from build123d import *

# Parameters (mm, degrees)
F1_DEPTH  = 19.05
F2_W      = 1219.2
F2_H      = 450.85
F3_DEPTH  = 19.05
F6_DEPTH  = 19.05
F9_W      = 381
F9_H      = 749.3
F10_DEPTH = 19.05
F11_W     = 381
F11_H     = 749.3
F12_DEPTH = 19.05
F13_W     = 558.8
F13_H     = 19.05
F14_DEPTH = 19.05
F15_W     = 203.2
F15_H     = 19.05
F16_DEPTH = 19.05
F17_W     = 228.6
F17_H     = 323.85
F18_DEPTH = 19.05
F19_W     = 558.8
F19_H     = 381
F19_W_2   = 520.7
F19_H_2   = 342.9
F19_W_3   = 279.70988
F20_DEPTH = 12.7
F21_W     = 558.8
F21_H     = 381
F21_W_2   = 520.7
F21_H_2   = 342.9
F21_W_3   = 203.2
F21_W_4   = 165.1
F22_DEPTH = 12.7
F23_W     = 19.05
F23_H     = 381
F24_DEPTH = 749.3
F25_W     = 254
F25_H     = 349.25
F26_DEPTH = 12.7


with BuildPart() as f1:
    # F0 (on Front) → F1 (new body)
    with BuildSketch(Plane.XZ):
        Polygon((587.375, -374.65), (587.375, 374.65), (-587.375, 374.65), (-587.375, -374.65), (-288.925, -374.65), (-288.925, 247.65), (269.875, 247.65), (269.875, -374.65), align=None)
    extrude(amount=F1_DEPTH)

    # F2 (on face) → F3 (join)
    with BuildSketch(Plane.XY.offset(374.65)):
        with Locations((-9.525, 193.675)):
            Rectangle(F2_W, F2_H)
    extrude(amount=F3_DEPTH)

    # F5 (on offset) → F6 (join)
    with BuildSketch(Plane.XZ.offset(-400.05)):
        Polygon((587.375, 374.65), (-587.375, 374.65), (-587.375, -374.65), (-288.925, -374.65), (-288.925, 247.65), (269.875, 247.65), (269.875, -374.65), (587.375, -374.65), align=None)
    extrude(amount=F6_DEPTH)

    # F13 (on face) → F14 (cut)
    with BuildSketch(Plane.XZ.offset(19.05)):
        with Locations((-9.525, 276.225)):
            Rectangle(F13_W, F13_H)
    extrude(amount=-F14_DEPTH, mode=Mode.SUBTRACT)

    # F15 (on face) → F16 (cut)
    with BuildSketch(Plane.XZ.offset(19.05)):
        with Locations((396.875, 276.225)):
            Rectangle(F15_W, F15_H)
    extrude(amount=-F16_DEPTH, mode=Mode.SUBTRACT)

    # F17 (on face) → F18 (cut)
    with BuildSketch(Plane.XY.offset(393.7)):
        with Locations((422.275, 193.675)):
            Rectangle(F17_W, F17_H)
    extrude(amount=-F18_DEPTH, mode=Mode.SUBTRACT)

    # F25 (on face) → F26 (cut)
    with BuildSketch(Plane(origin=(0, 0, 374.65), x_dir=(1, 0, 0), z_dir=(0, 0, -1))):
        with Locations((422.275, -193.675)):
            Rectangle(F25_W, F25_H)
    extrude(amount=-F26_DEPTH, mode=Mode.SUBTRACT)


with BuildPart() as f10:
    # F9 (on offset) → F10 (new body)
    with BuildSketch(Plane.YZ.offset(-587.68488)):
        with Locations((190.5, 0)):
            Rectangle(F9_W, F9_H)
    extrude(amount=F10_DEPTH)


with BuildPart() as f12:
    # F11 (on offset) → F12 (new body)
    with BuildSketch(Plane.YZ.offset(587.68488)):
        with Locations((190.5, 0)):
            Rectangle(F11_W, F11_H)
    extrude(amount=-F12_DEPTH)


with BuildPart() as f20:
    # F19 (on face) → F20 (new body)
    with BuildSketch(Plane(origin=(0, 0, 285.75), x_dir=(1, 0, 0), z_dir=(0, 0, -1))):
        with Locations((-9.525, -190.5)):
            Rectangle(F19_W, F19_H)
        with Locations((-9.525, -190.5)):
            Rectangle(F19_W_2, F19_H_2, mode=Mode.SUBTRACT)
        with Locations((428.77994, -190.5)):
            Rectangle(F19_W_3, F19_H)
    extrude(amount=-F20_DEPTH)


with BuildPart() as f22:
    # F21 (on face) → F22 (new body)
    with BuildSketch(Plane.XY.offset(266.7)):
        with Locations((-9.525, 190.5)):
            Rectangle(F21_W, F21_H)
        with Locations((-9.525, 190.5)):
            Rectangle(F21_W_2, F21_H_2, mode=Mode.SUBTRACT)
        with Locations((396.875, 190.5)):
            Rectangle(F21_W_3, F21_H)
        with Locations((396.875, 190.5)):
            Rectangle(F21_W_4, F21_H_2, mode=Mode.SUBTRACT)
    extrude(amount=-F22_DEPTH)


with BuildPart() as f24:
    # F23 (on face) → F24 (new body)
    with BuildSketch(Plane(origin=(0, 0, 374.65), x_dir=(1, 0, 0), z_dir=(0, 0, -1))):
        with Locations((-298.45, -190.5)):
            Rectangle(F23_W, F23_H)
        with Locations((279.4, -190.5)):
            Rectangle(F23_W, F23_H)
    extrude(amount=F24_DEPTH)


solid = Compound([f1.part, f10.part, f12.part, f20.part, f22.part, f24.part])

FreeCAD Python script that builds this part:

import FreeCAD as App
import Part
import Sketcher
from FreeCAD import Vector
Q = App.Units.Quantity

doc = App.newDocument("Part")
body = doc.addObject("PartDesign::Body", "Body")

sketch1 = body.newObject("Sketcher::SketchObject", "Sketch")
sketch1.AttachmentSupport = (doc.getObject("XZ_Plane"), [""])
sketch1.MapMode = "FlatFace"
sketch1.addGeometry(Part.LineSegment(Vector(587.375, -374.65, 0), Vector(587.375, 374.65, 0)), False)
sketch1.addGeometry(Part.LineSegment(Vector(587.375, 374.65, 0), Vector(-587.375, 374.65, 0)), False)
sketch1.addGeometry(Part.LineSegment(Vector(-587.375, 374.65, 0), Vector(-587.375, -374.65, 0)), False)
sketch1.addGeometry(Part.LineSegment(Vector(-587.375, -374.65, 0), Vector(-288.925, -374.65, 0)), False)
sketch1.addGeometry(Part.LineSegment(Vector(-288.925, -374.65, 0), Vector(-288.925, 247.65, 0)), False)
sketch1.addGeometry(Part.LineSegment(Vector(-288.925, 247.65, 0), Vector(269.875, 247.65, 0)), False)
sketch1.addGeometry(Part.LineSegment(Vector(269.875, 247.65, 0), Vector(269.875, -374.65, 0)), False)
sketch1.addGeometry(Part.LineSegment(Vector(269.875, -374.65, 0), Vector(587.375, -374.65, 0)), False)
sketch1.addConstraint(Sketcher.Constraint("Coincident", 0, 2, 1, 1))
sketch1.addConstraint(Sketcher.Constraint("Coincident", 1, 2, 2, 1))
sketch1.addConstraint(Sketcher.Constraint("Coincident", 2, 2, 3, 1))
sketch1.addConstraint(Sketcher.Constraint("Coincident", 3, 2, 4, 1))
sketch1.addConstraint(Sketcher.Constraint("Coincident", 4, 2, 5, 1))
sketch1.addConstraint(Sketcher.Constraint("Coincident", 5, 2, 6, 1))
sketch1.addConstraint(Sketcher.Constraint("Coincident", 6, 2, 7, 1))
sketch1.addConstraint(Sketcher.Constraint("Coincident", 7, 2, 0, 1))
sketch1.addConstraint(Sketcher.Constraint("Vertical", 0))
sketch1.addConstraint(Sketcher.Constraint("Horizontal", 1))
sketch1.addConstraint(Sketcher.Constraint("Vertical", 2))
sketch1.addConstraint(Sketcher.Constraint("Horizontal", 3))
sketch1.addConstraint(Sketcher.Constraint("Vertical", 4))
sketch1.addConstraint(Sketcher.Constraint("Horizontal", 5))
sketch1.addConstraint(Sketcher.Constraint("Vertical", 6))
sketch1.addConstraint(Sketcher.Constraint("Horizontal", 7))
sketch1.addConstraint(Sketcher.Constraint("Symmetric", 0, 2, 2, 2, -1, 1))
sketch1.addConstraint(Sketcher.Constraint("Horizontal", 3, 2, 6, 2))
sketch1.addConstraint(Sketcher.Constraint("DistanceX", 5, 1, 5, 2, Q("22 in")))
sketch1.addConstraint(Sketcher.Constraint("DistanceX", 7, 1, 7, 2, Q("12.5 in")))
sketch1.addConstraint(Sketcher.Constraint("DistanceY", 0, 1, 0, 2, Q("29.5 in")))
sketch1.addConstraint(Sketcher.Constraint("DistanceY", 4, 1, 4, 2, Q("24.5 in")))
sketch1.addConstraint(Sketcher.Constraint("DistanceX", 1, 2, 1, 1, Q("46.25 in")))
pad1 = body.newObject("PartDesign::Pad", "Pad")
pad1.Profile = sketch1
pad1.Length = Q("0.75 in")

sketch2 = body.newObject("Sketcher::SketchObject", "Sketch001")
sketch2.AttachmentSupport = (doc.getObject("XY_Plane"), [""])
sketch2.MapMode = "FlatFace"
sketch2.AttachmentOffset = App.Placement(Vector(0, 0, 14.75 * 25.4), App.Rotation())
sketch2.addGeometry(Part.LineSegment(Vector(-619.125, 419.1, 0), Vector(-619.125, -31.75, 0)), False)
sketch2.addGeometry(Part.LineSegment(Vector(-619.125, -31.75, 0), Vector(600.075, -31.75, 0)), False)
sketch2.addGeometry(Part.LineSegment(Vector(600.075, -31.75, 0), Vector(600.075, 419.1, 0)), False)
sketch2.addGeometry(Part.LineSegment(Vector(600.075, 419.1, 0), Vector(-619.125, 419.1, 0)), False)
sketch2.addConstraint(Sketcher.Constraint("Coincident", 0, 2, 1, 1))
sketch2.addConstraint(Sketcher.Constraint("Coincident", 1, 2, 2, 1))
sketch2.addConstraint(Sketcher.Constraint("Coincident", 2, 2, 3, 1))
sketch2.addConstraint(Sketcher.Constraint("Coincident", 3, 2, 0, 1))
sketch2.addConstraint(Sketcher.Constraint("Vertical", 0))
sketch2.addConstraint(Sketcher.Constraint("Horizontal", 1))
sketch2.addConstraint(Sketcher.Constraint("Vertical", 2))
sketch2.addConstraint(Sketcher.Constraint("Horizontal", 3))
sketch2.addConstraint(Sketcher.Constraint("DistanceX", 1, 1, 1, 2, Q("48 in")))
sketch2.addConstraint(Sketcher.Constraint("DistanceY", 0, 2, 0, 1, Q("17.75 in")))
sketch2.addConstraint(Sketcher.Constraint("DistanceY", -1, 1, 2, 2, Q("16.5 in")))
sketch2.addConstraint(Sketcher.Constraint("DistanceX", 0, 2, -1, 1, Q("24.375 in")))
pad2 = body.newObject("PartDesign::Pad", "Pad001")
pad2.Profile = sketch2
pad2.Length = Q("0.75 in")

sketch3 = body.newObject("Sketcher::SketchObject", "Sketch002")
sketch3.AttachmentSupport = (doc.getObject("XZ_Plane"), [""])
sketch3.MapMode = "FlatFace"
sketch3.AttachmentOffset = App.Placement(Vector(0, 0, -15.75 * 25.4), App.Rotation())
sketch3.addGeometry(Part.LineSegment(Vector(587.375, 374.65, 0), Vector(-587.375, 374.65, 0)), False)
sketch3.addGeometry(Part.LineSegment(Vector(-587.375, 374.65, 0), Vector(-587.375, -374.65, 0)), False)
sketch3.addGeometry(Part.LineSegment(Vector(-587.375, -374.65, 0), Vector(-288.925, -374.65, 0)), False)
sketch3.addGeometry(Part.LineSegment(Vector(-288.925, -374.65, 0), Vector(-288.925, 247.65, 0)), False)
sketch3.addGeometry(Part.LineSegment(Vector(-288.925, 247.65, 0), Vector(269.875, 247.65, 0)), False)
sketch3.addGeometry(Part.LineSegment(Vector(269.875, 247.65, 0), Vector(269.875, -374.65, 0)), False)
sketch3.addGeometry(Part.LineSegment(Vector(269.875, -374.65, 0), Vector(587.375, -374.65, 0)), False)
sketch3.addGeometry(Part.LineSegment(Vector(587.375, -374.65, 0), Vector(587.375, 374.65, 0)), False)
sketch3.addConstraint(Sketcher.Constraint("Coincident", 0, 2, 1, 1))
sketch3.addConstraint(Sketcher.Constraint("Coincident", 1, 2, 2, 1))
sketch3.addConstraint(Sketcher.Constraint("Coincident", 2, 2, 3, 1))
sketch3.addConstraint(Sketcher.Constraint("Coincident", 3, 2, 4, 1))
sketch3.addConstraint(Sketcher.Constraint("Coincident", 4, 2, 5, 1))
sketch3.addConstraint(Sketcher.Constraint("Coincident", 5, 2, 6, 1))
sketch3.addConstraint(Sketcher.Constraint("Coincident", 6, 2, 7, 1))
sketch3.addConstraint(Sketcher.Constraint("Coincident", 7, 2, 0, 1))
sketch3.addConstraint(Sketcher.Constraint("Horizontal", 0))
sketch3.addConstraint(Sketcher.Constraint("Vertical", 1))
sketch3.addConstraint(Sketcher.Constraint("Horizontal", 2))
sketch3.addConstraint(Sketcher.Constraint("Vertical", 3))
sketch3.addConstraint(Sketcher.Constraint("Horizontal", 4))
sketch3.addConstraint(Sketcher.Constraint("Vertical", 5))
sketch3.addConstraint(Sketcher.Constraint("Horizontal", 6))
sketch3.addConstraint(Sketcher.Constraint("Vertical", 7))
sketch3.addConstraint(Sketcher.Constraint("Symmetric", 0, 2, 6, 2, -1, 1))
sketch3.addConstraint(Sketcher.Constraint("Horizontal", 2, 2, 5, 2))
sketch3.addConstraint(Sketcher.Constraint("DistanceX", 4, 1, 4, 2, Q("22 in")))
sketch3.addConstraint(Sketcher.Constraint("DistanceX", 6, 1, 6, 2, Q("12.5 in")))
sketch3.addConstraint(Sketcher.Constraint("DistanceY", 1, 2, 1, 1, Q("29.5 in")))
sketch3.addConstraint(Sketcher.Constraint("DistanceY", 3, 1, 3, 2, Q("24.5 in")))
sketch3.addConstraint(Sketcher.Constraint("DistanceX", 0, 2, 0, 1, Q("46.25 in")))
pad3 = body.newObject("PartDesign::Pad", "Pad002")
pad3.Profile = sketch3
pad3.Length = Q("0.75 in")

sketch4 = body.newObject("Sketcher::SketchObject", "Sketch003")
sketch4.AttachmentSupport = (doc.getObject("XZ_Plane"), [""])
sketch4.MapMode = "FlatFace"
sketch4.AttachmentOffset = App.Placement(Vector(0, 0, 0.75 * 25.4), App.Rotation())
sketch4.addGeometry(Part.LineSegment(Vector(-288.925, 285.75, 0), Vector(-288.925, 266.7, 0)), False)
sketch4.addGeometry(Part.LineSegment(Vector(-288.925, 266.7, 0), Vector(269.875, 266.7, 0)), False)
sketch4.addGeometry(Part.LineSegment(Vector(269.875, 266.7, 0), Vector(269.875, 285.75, 0)), False)
sketch4.addGeometry(Part.LineSegment(Vector(269.875, 285.75, 0), Vector(-288.925, 285.75, 0)), False)
sketch4.addConstraint(Sketcher.Constraint("Coincident", 0, 2, 1, 1))
sketch4.addConstraint(Sketcher.Constraint("Coincident", 1, 2, 2, 1))
sketch4.addConstraint(Sketcher.Constraint("Coincident", 2, 2, 3, 1))
sketch4.addConstraint(Sketcher.Constraint("Coincident", 3, 2, 0, 1))
sketch4.addConstraint(Sketcher.Constraint("Vertical", 0))
sketch4.addConstraint(Sketcher.Constraint("Horizontal", 1))
sketch4.addConstraint(Sketcher.Constraint("Vertical", 2))
sketch4.addConstraint(Sketcher.Constraint("Horizontal", 3))
sketch4.addConstraint(Sketcher.Constraint("DistanceX", 1, 1, 1, 2, Q("22 in")))
sketch4.addConstraint(Sketcher.Constraint("DistanceY", 0, 2, 0, 1, Q("0.75 in")))
sketch4.addConstraint(Sketcher.Constraint("DistanceY", -1, 1, 0, 2, Q("10.5 in")))
sketch4.addConstraint(Sketcher.Constraint("DistanceX", 0, 2, -1, 1, Q("11.375 in")))
pocket1 = body.newObject("PartDesign::Pocket", "Pocket")
pocket1.Profile = sketch4
pocket1.Length = Q("0.75 in")

sketch5 = body.newObject("Sketcher::SketchObject", "Sketch004")
sketch5.AttachmentSupport = (doc.getObject("XZ_Plane"), [""])
sketch5.MapMode = "FlatFace"
sketch5.AttachmentOffset = App.Placement(Vector(0, 0, 0.75 * 25.4), App.Rotation())
sketch5.addGeometry(Part.LineSegment(Vector(295.275, 285.75, 0), Vector(295.275, 266.7, 0)), False)
sketch5.addGeometry(Part.LineSegment(Vector(295.275, 266.7, 0), Vector(498.475, 266.7, 0)), False)
sketch5.addGeometry(Part.LineSegment(Vector(498.475, 266.7, 0), Vector(498.475, 285.75, 0)), False)
sketch5.addGeometry(Part.LineSegment(Vector(498.475, 285.75, 0), Vector(295.275, 285.75, 0)), False)
sketch5.addConstraint(Sketcher.Constraint("Coincident", 0, 2, 1, 1))
sketch5.addConstraint(Sketcher.Constraint("Coincident", 1, 2, 2, 1))
sketch5.addConstraint(Sketcher.Constraint("Coincident", 2, 2, 3, 1))
sketch5.addConstraint(Sketcher.Constraint("Coincident", 3, 2, 0, 1))
sketch5.addConstraint(Sketcher.Constraint("Vertical", 0))
sketch5.addConstraint(Sketcher.Constraint("Horizontal", 1))
sketch5.addConstraint(Sketcher.Constraint("Vertical", 2))
sketch5.addConstraint(Sketcher.Constraint("Horizontal", 3))
sketch5.addConstraint(Sketcher.Constraint("DistanceX", 1, 1, 1, 2, Q("8 in")))
sketch5.addConstraint(Sketcher.Constraint("DistanceY", 0, 2, 0, 1, Q("0.75 in")))
sketch5.addConstraint(Sketcher.Constraint("DistanceY", -1, 1, 0, 2, Q("10.5 in")))
sketch5.addConstraint(Sketcher.Constraint("DistanceX", -1, 1, 0, 2, Q("11.625 in")))
pocket2 = body.newObject("PartDesign::Pocket", "Pocket001")
pocket2.Profile = sketch5
pocket2.Length = Q("0.75 in")

sketch6 = body.newObject("Sketcher::SketchObject", "Sketch005")
sketch6.AttachmentSupport = (doc.getObject("XY_Plane"), [""])
sketch6.MapMode = "FlatFace"
sketch6.AttachmentOffset = App.Placement(Vector(0, 0, 15.5 * 25.4), App.Rotation())
sketch6.addGeometry(Part.LineSegment(Vector(307.975, 355.6, 0), Vector(307.975, 31.75, 0)), False)
sketch6.addGeometry(Part.LineSegment(Vector(307.975, 31.75, 0), Vector(536.575, 31.75, 0)), False)
sketch6.addGeometry(Part.LineSegment(Vector(536.575, 31.75, 0), Vector(536.575, 355.6, 0)), False)
sketch6.addGeometry(Part.LineSegment(Vector(536.575, 355.6, 0), Vector(307.975, 355.6, 0)), False)
sketch6.addConstraint(Sketcher.Constraint("Coincident", 0, 2, 1, 1))
sketch6.addConstraint(Sketcher.Constraint("Coincident", 1, 2, 2, 1))
sketch6.addConstraint(Sketcher.Constraint("Coincident", 2, 2, 3, 1))
sketch6.addConstraint(Sketcher.Constraint("Coincident", 3, 2, 0, 1))
sketch6.addConstraint(Sketcher.Constraint("Vertical", 0))
sketch6.addConstraint(Sketcher.Constraint("Horizontal", 1))
sketch6.addConstraint(Sketcher.Constraint("Vertical", 2))
sketch6.addConstraint(Sketcher.Constraint("Horizontal", 3))
sketch6.addConstraint(Sketcher.Constraint("DistanceX", 1, 1, 1, 2, Q("9 in")))
sketch6.addConstraint(Sketcher.Constraint("DistanceY", -1, 1, 2, 2, Q("14 in")))
sketch6.addConstraint(Sketcher.Constraint("DistanceY", 0, 2, 0, 1, Q("12.75 in")))
sketch6.addConstraint(Sketcher.Constraint("DistanceX", -1, 1, 0, 2, Q("12.125 in")))
pocket3 = body.newObject("PartDesign::Pocket", "Pocket002")
pocket3.Profile = sketch6
pocket3.Length = Q("0.75 in")

sketch7 = body.newObject("Sketcher::SketchObject", "Sketch006")
sketch7.AttachmentSupport = (doc.getObject("XY_Plane"), [""])
sketch7.MapMode = "FlatFace"
sketch7.AttachmentOffset = App.Placement(Vector(0, 0, 14.75 * 25.4), App.Rotation())
sketch7.addGeometry(Part.LineSegment(Vector(295.275, 19.05, 0), Vector(295.275, 368.3, 0)), False)
sketch7.addGeometry(Part.LineSegment(Vector(295.275, 368.3, 0), Vector(549.275, 368.3, 0)), False)
sketch7.addGeometry(Part.LineSegment(Vector(549.275, 368.3, 0), Vector(549.275, 19.05, 0)), False)
sketch7.addGeometry(Part.LineSegment(Vector(549.275, 19.05, 0), Vector(295.275, 19.05, 0)), False)
sketch7.addConstraint(Sketcher.Constraint("Coincident", 0, 2, 1, 1))
sketch7.addConstraint(Sketcher.Constraint("Coincident", 1, 2, 2, 1))
sketch7.addConstraint(Sketcher.Constraint("Coincident", 2, 2, 3, 1))
sketch7.addConstraint(Sketcher.Constraint("Coincident", 3, 2, 0, 1))
sketch7.addConstraint(Sketcher.Constraint("Vertical", 0))
sketch7.addConstraint(Sketcher.Constraint("Horizontal", 1))
sketch7.addConstraint(Sketcher.Constraint("Vertical", 2))
sketch7.addConstraint(Sketcher.Constraint("Horizontal", 3))
sketch7.addConstraint(Sketcher.Constraint("DistanceX", 1, 1, 1, 2, Q("10 in")))
sketch7.addConstraint(Sketcher.Constraint("DistanceY", 0, 1, 0, 2, Q("13.75 in")))
sketch7.addConstraint(Sketcher.Constraint("DistanceY", -1, 1, 0, 2, Q("14.5 in")))
sketch7.addConstraint(Sketcher.Constraint("DistanceX", -1, 1, 0, 2, Q("11.625 in")))
pocket4 = body.newObject("PartDesign::Pocket", "Pocket003")
pocket4.Profile = sketch7
pocket4.Length = Q("0.5 in")
pocket4.Reversed = True
body2 = doc.addObject("PartDesign::Body", "Body001")

sketch8 = body2.newObject("Sketcher::SketchObject", "Sketch007")
sketch8.AttachmentSupport = (doc.getObject("YZ_Plane001"), [""])
sketch8.MapMode = "FlatFace"
sketch8.AttachmentOffset = App.Placement(Vector(0, 0, -23.1372 * 25.4), App.Rotation())
sketch8.addGeometry(Part.LineSegment(Vector(0, 374.65, 0), Vector(0, -374.65, 0)), False)
sketch8.addGeometry(Part.LineSegment(Vector(0, -374.65, 0), Vector(381, -374.65, 0)), False)
sketch8.addGeometry(Part.LineSegment(Vector(381, -374.65, 0), Vector(381, 374.65, 0)), False)
sketch8.addGeometry(Part.LineSegment(Vector(381, 374.65, 0), Vector(0, 374.65, 0)), False)
sketch8.addConstraint(Sketcher.Constraint("Coincident", 0, 2, 1, 1))
sketch8.addConstraint(Sketcher.Constraint("Coincident", 1, 2, 2, 1))
sketch8.addConstraint(Sketcher.Constraint("Coincident", 2, 2, 3, 1))
sketch8.addConstraint(Sketcher.Constraint("Coincident", 3, 2, 0, 1))
sketch8.addConstraint(Sketcher.Constraint("Vertical", 0))
sketch8.addConstraint(Sketcher.Constraint("Horizontal", 1))
sketch8.addConstraint(Sketcher.Constraint("Vertical", 2))
sketch8.addConstraint(Sketcher.Constraint("Horizontal", 3))
sketch8.addConstraint(Sketcher.Constraint("Symmetric", 0, 2, 3, 2, -1, 1))
sketch8.addConstraint(Sketcher.Constraint("DistanceX", 1, 1, 1, 2, Q("15 in")))
sketch8.addConstraint(Sketcher.Constraint("DistanceY", 0, 2, 0, 1, Q("29.5 in")))
pad4 = body2.newObject("PartDesign::Pad", "Pad003")
pad4.Profile = sketch8
pad4.Length = Q("0.75 in")
body3 = doc.addObject("PartDesign::Body", "Body002")

sketch9 = body3.newObject("Sketcher::SketchObject", "Sketch008")
sketch9.AttachmentSupport = (doc.getObject("YZ_Plane002"), [""])
sketch9.MapMode = "FlatFace"
sketch9.AttachmentOffset = App.Placement(Vector(0, 0, 23.1372 * 25.4), App.Rotation())
sketch9.addGeometry(Part.LineSegment(Vector(0, 374.65, 0), Vector(0, -374.65, 0)), False)
sketch9.addGeometry(Part.LineSegment(Vector(0, -374.65, 0), Vector(381, -374.65, 0)), False)
sketch9.addGeometry(Part.LineSegment(Vector(381, -374.65, 0), Vector(381, 374.65, 0)), False)
sketch9.addGeometry(Part.LineSegment(Vector(381, 374.65, 0), Vector(0, 374.65, 0)), False)
sketch9.addConstraint(Sketcher.Constraint("Coincident", 0, 2, 1, 1))
sketch9.addConstraint(Sketcher.Constraint("Coincident", 1, 2, 2, 1))
sketch9.addConstraint(Sketcher.Constraint("Coincident", 2, 2, 3, 1))
sketch9.addConstraint(Sketcher.Constraint("Coincident", 3, 2, 0, 1))
sketch9.addConstraint(Sketcher.Constraint("Vertical", 0))
sketch9.addConstraint(Sketcher.Constraint("Horizontal", 1))
sketch9.addConstraint(Sketcher.Constraint("Vertical", 2))
sketch9.addConstraint(Sketcher.Constraint("Horizontal", 3))
sketch9.addConstraint(Sketcher.Constraint("Symmetric", 0, 2, 3, 2, -1, 1))
sketch9.addConstraint(Sketcher.Constraint("DistanceX", 1, 1, 1, 2, Q("15 in")))
sketch9.addConstraint(Sketcher.Constraint("DistanceY", 0, 2, 0, 1, Q("29.5 in")))
pad5 = body3.newObject("PartDesign::Pad", "Pad004")
pad5.Profile = sketch9
pad5.Length = Q("0.75 in")
pad5.Reversed = True
body4 = doc.addObject("PartDesign::Body", "Body003")
body4.AllowCompound = True

sketch10 = body4.newObject("Sketcher::SketchObject", "Sketch009")
sketch10.AttachmentSupport = (doc.getObject("XY_Plane003"), [""])
sketch10.MapMode = "FlatFace"
sketch10.AttachmentOffset = App.Placement(Vector(0, 0, 11.25 * 25.4), App.Rotation())
sketch10.addGeometry(Part.LineSegment(Vector(-288.925, 0, 0), Vector(-288.925, 381, 0)), False)
sketch10.addGeometry(Part.LineSegment(Vector(-288.925, 381, 0), Vector(269.875, 381, 0)), False)
sketch10.addGeometry(Part.LineSegment(Vector(269.875, 381, 0), Vector(269.875, 0, 0)), False)
sketch10.addGeometry(Part.LineSegment(Vector(269.875, 0, 0), Vector(-288.925, 0, 0)), False)
sketch10.addGeometry(Part.LineSegment(Vector(250.825, 361.95, 0), Vector(-269.875, 361.95, 0)), False)
sketch10.addGeometry(Part.LineSegment(Vector(-269.875, 361.95, 0), Vector(-269.875, 19.05, 0)), False)
sketch10.addGeometry(Part.LineSegment(Vector(-269.875, 19.05, 0), Vector(250.825, 19.05, 0)), False)
sketch10.addGeometry(Part.LineSegment(Vector(250.825, 19.05, 0), Vector(250.825, 361.95, 0)), False)
sketch10.addGeometry(Part.LineSegment(Vector(288.925, 0, 0), Vector(288.925, 381, 0)), False)
sketch10.addGeometry(Part.LineSegment(Vector(288.925, 381, 0), Vector(568.63488, 381, 0)), False)
sketch10.addGeometry(Part.LineSegment(Vector(568.63488, 381, 0), Vector(568.63488, 0, 0)), False)
sketch10.addGeometry(Part.LineSegment(Vector(568.63488, 0, 0), Vector(288.925, 0, 0)), False)
sketch10.addConstraint(Sketcher.Constraint("Coincident", 0, 2, 1, 1))
sketch10.addConstraint(Sketcher.Constraint("Coincident", 1, 2, 2, 1))
sketch10.addConstraint(Sketcher.Constraint("Coincident", 2, 2, 3, 1))
sketch10.addConstraint(Sketcher.Constraint("Coincident", 3, 2, 0, 1))
sketch10.addConstraint(Sketcher.Constraint("Coincident", 4, 2, 5, 1))
sketch10.addConstraint(Sketcher.Constraint("Coincident", 5, 2, 6, 1))
sketch10.addConstraint(Sketcher.Constraint("Coincident", 6, 2, 7, 1))
sketch10.addConstraint(Sketcher.Constraint("Coincident", 7, 2, 4, 1))
sketch10.addConstraint(Sketcher.Constraint("Coincident", 8, 2, 9, 1))
sketch10.addConstraint(Sketcher.Constraint("Coincident", 9, 2, 10, 1))
sketch10.addConstraint(Sketcher.Constraint("Coincident", 10, 2, 11, 1))
sketch10.addConstraint(Sketcher.Constraint("Coincident", 11, 2, 8, 1))
sketch10.addConstraint(Sketcher.Constraint("Vertical", 0))
sketch10.addConstraint(Sketcher.Constraint("Horizontal", 1))
sketch10.addConstraint(Sketcher.Constraint("Vertical", 2))
sketch10.addConstraint(Sketcher.Constraint("Horizontal", 3))
sketch10.addConstraint(Sketcher.Constraint("Horizontal", 4))
sketch10.addConstraint(Sketcher.Constraint("Vertical", 5))
sketch10.addConstraint(Sketcher.Constraint("Horizontal", 6))
sketch10.addConstraint(Sketcher.Constraint("Vertical", 7))
sketch10.addConstraint(Sketcher.Constraint("Vertical", 8))
sketch10.addConstraint(Sketcher.Constraint("Horizontal", 9))
sketch10.addConstraint(Sketcher.Constraint("Vertical", 10))
sketch10.addConstraint(Sketcher.Constraint("Horizontal", 11))
sketch10.addConstraint(Sketcher.Constraint("Symmetric", 3, 2, 11, 2, -1, 1))
sketch10.addConstraint(Sketcher.Constraint("PointOnObject", 2, 2, -1))
sketch10.addConstraint(Sketcher.Constraint("Horizontal", 1, 2, 8, 2))
sketch10.addConstraint(Sketcher.Constraint("DistanceX", 1, 1, 1, 2, Q("22 in")))
sketch10.addConstraint(Sketcher.Constraint("DistanceY", 0, 1, 0, 2, Q("15 in")))
sketch10.addConstraint(Sketcher.Constraint("DistanceX", 4, 2, 4, 1, Q("20.5 in")))
sketch10.addConstraint(Sketcher.Constraint("DistanceY", 5, 2, 5, 1, Q("13.5 in")))
sketch10.addConstraint(Sketcher.Constraint("DistanceX", 4, 2, 8, 2, Q("22 in")))
sketch10.addConstraint(Sketcher.Constraint("DistanceY", -1, 1, 4, 2, Q("14.25 in")))
sketch10.addConstraint(Sketcher.Constraint("DistanceX", 0, 2, 4, 2, Q("0.75 in")))
sketch10.addConstraint(Sketcher.Constraint("DistanceX", 9, 1, 9, 2, Q("11.0122 in")))
pad6 = body4.newObject("PartDesign::Pad", "Pad005")
pad6.Profile = sketch10
pad6.Length = Q("0.5 in")
body5 = doc.addObject("PartDesign::Body", "Body004")
body5.AllowCompound = True

sketch11 = body5.newObject("Sketcher::SketchObject", "Sketch010")
sketch11.AttachmentSupport = (doc.getObject("XY_Plane004"), [""])
sketch11.MapMode = "FlatFace"
sketch11.AttachmentOffset = App.Placement(Vector(0, 0, 10.5 * 25.4), App.Rotation())
sketch11.addGeometry(Part.LineSegment(Vector(-288.925, 381, 0), Vector(-288.925, 0, 0)), False)
sketch11.addGeometry(Part.LineSegment(Vector(-288.925, 0, 0), Vector(269.875, 0, 0)), False)
sketch11.addGeometry(Part.LineSegment(Vector(269.875, 0, 0), Vector(269.875, 381, 0)), False)
sketch11.addGeometry(Part.LineSegment(Vector(269.875, 381, 0), Vector(-288.925, 381, 0)), False)
sketch11.addGeometry(Part.LineSegment(Vector(250.825, 19.05, 0), Vector(-269.875, 19.05, 0)), False)
sketch11.addGeometry(Part.LineSegment(Vector(-269.875, 19.05, 0), Vector(-269.875, 361.95, 0)), False)
sketch11.addGeometry(Part.LineSegment(Vector(-269.875, 361.95, 0), Vector(250.825, 361.95, 0)), False)
sketch11.addGeometry(Part.LineSegment(Vector(250.825, 361.95, 0), Vector(250.825, 19.05, 0)), False)
sketch11.addGeometry(Part.LineSegment(Vector(295.275, 381, 0), Vector(295.275, 0, 0)), False)
sketch11.addGeometry(Part.LineSegment(Vector(295.275, 0, 0), Vector(498.475, 0, 0)), False)
sketch11.addGeometry(Part.LineSegment(Vector(498.475, 0, 0), Vector(498.475, 381, 0)), False)
sketch11.addGeometry(Part.LineSegment(Vector(498.475, 381, 0), Vector(295.275, 381, 0)), False)
sketch11.addGeometry(Part.LineSegment(Vector(479.425, 19.05, 0), Vector(314.325, 19.05, 0)), False)
sketch11.addGeometry(Part.LineSegment(Vector(314.325, 19.05, 0), Vector(314.325, 361.95, 0)), False)
sketch11.addGeometry(Part.LineSegment(Vector(314.325, 361.95, 0), Vector(479.425, 361.95, 0)), False)
sketch11.addGeometry(Part.LineSegment(Vector(479.425, 361.95, 0), Vector(479.425, 19.05, 0)), False)
sketch11.addConstraint(Sketcher.Constraint("Coincident", 0, 2, 1, 1))
sketch11.addConstraint(Sketcher.Constraint("Coincident", 1, 2, 2, 1))
sketch11.addConstraint(Sketcher.Constraint("Coincident", 2, 2, 3, 1))
sketch11.addConstraint(Sketcher.Constraint("Coincident", 3, 2, 0, 1))
sketch11.addConstraint(Sketcher.Constraint("Coincident", 4, 2, 5, 1))
sketch11.addConstraint(Sketcher.Constraint("Coincident", 5, 2, 6, 1))
sketch11.addConstraint(Sketcher.Constraint("Coincident", 6, 2, 7, 1))
sketch11.addConstraint(Sketcher.Constraint("Coincident", 7, 2, 4, 1))
sketch11.addConstraint(Sketcher.Constraint("Coincident", 8, 2, 9, 1))
sketch11.addConstraint(Sketcher.Constraint("Coincident", 9, 2, 10, 1))
sketch11.addConstraint(Sketcher.Constraint("Coincident", 10, 2, 11, 1))
sketch11.addConstraint(Sketcher.Constraint("Coincident", 11, 2, 8, 1))
sketch11.addConstraint(Sketcher.Constraint("Coincident", 12, 2, 13, 1))
sketch11.addConstraint(Sketcher.Constraint("Coincident", 13, 2, 14, 1))
sketch11.addConstraint(Sketcher.Constraint("Coincident", 14, 2, 15, 1))
sketch11.addConstraint(Sketcher.Constraint("Coincident", 15, 2, 12, 1))
sketch11.addConstraint(Sketcher.Constraint("Vertical", 0))
sketch11.addConstraint(Sketcher.Constraint("Horizontal", 1))
sketch11.addConstraint(Sketcher.Constraint("Vertical", 2))
sketch11.addConstraint(Sketcher.Constraint("Horizontal", 3))
sketch11.addConstraint(Sketcher.Constraint("Horizontal", 4))
sketch11.addConstraint(Sketcher.Constraint("Vertical", 5))
sketch11.addConstraint(Sketcher.Constraint("Horizontal", 6))
sketch11.addConstraint(Sketcher.Constraint("Vertical", 7))
sketch11.addConstraint(Sketcher.Constraint("Vertical", 8))
sketch11.addConstraint(Sketcher.Constraint("Horizontal", 9))
sketch11.addConstraint(Sketcher.Constraint("Vertical", 10))
sketch11.addConstraint(Sketcher.Constraint("Horizontal", 11))
sketch11.addConstraint(Sketcher.Constraint("Horizontal", 12))
sketch11.addConstraint(Sketcher.Constraint("Vertical", 13))
sketch11.addConstraint(Sketcher.Constraint("Horizontal", 14))
sketch11.addConstraint(Sketcher.Constraint("Vertical", 15))
sketch11.addConstraint(Sketcher.Constraint("PointOnObject", 0, 2, -1))
sketch11.addConstraint(Sketcher.Constraint("PointOnObject", 8, 2, -1))
sketch11.addConstraint(Sketcher.Constraint("Horizontal", 3, 2, 10, 2))
sketch11.addConstraint(Sketcher.Constraint("Horizontal", 7, 2, 12, 2))
sketch11.addConstraint(Sketcher.Constraint("Horizontal", 6, 2, 13, 2))
sketch11.addConstraint(Sketcher.Constraint("DistanceX", 1, 1, 1, 2, Q("22 in")))
sketch11.addConstraint(Sketcher.Constraint("DistanceX", 9, 1, 9, 2, Q("8 in")))
sketch11.addConstraint(Sketcher.Constraint("DistanceY", 0, 2, 0, 1, Q("15 in")))
sketch11.addConstraint(Sketcher.Constraint("DistanceX", 4, 2, 4, 1, Q("20.5 in")))
sketch11.addConstraint(Sketcher.Constraint("DistanceX", 12, 2, 12, 1, Q("6.5 in")))
sketch11.addConstraint(Sketcher.Constraint("DistanceY", 5, 1, 5, 2, Q("13.5 in")))
sketch11.addConstraint(Sketcher.Constraint("DistanceX", 1, 2, 8, 2, Q("1 in")))
sketch11.addConstraint(Sketcher.Constraint("DistanceX", 6, 2, 14, 2, Q("9 in")))
sketch11.addConstraint(Sketcher.Constraint("DistanceY", -1, 1, 4, 2, Q("0.75 in")))
sketch11.addConstraint(Sketcher.Constraint("DistanceX", 0, 2, 4, 2, Q("0.75 in")))
sketch11.addConstraint(Sketcher.Constraint("DistanceX", 0, 2, -1, 1, Q("11.375 in")))
pad7 = body5.newObject("PartDesign::Pad", "Pad006")
pad7.Profile = sketch11
pad7.Length = Q("0.5 in")
pad7.Reversed = True
body6 = doc.addObject("PartDesign::Body", "Body005")
body6.AllowCompound = True

sketch12 = body6.newObject("Sketcher::SketchObject", "Sketch011")
sketch12.AttachmentSupport = (doc.getObject("XY_Plane005"), [""])
sketch12.MapMode = "FlatFace"
sketch12.AttachmentOffset = App.Placement(Vector(0, 0, 14.75 * 25.4), App.Rotation())
sketch12.addGeometry(Part.LineSegment(Vector(-307.975, 0, 0), Vector(-307.975, 381, 0)), False)
sketch12.addGeometry(Part.LineSegment(Vector(-307.975, 381, 0), Vector(-288.925, 381, 0)), False)
sketch12.addGeometry(Part.LineSegment(Vector(-288.925, 381, 0), Vector(-288.925, 0, 0)), False)
sketch12.addGeometry(Part.LineSegment(Vector(-288.925, 0, 0), Vector(-307.975, 0, 0)), False)
sketch12.addGeometry(Part.LineSegment(Vector(269.875, 0, 0), Vector(269.875, 381, 0)), False)
sketch12.addGeometry(Part.LineSegment(Vector(269.875, 381, 0), Vector(288.925, 381, 0)), False)
sketch12.addGeometry(Part.LineSegment(Vector(288.925, 381, 0), Vector(288.925, 0, 0)), False)
sketch12.addGeometry(Part.LineSegment(Vector(288.925, 0, 0), Vector(269.875, 0, 0)), False)
sketch12.addConstraint(Sketcher.Constraint("Coincident", 0, 2, 1, 1))
sketch12.addConstraint(Sketcher.Constraint("Coincident", 1, 2, 2, 1))
sketch12.addConstraint(Sketcher.Constraint("Coincident", 2, 2, 3, 1))
sketch12.addConstraint(Sketcher.Constraint("Coincident", 3, 2, 0, 1))
sketch12.addConstraint(Sketcher.Constraint("Coincident", 4, 2, 5, 1))
sketch12.addConstraint(Sketcher.Constraint("Coincident", 5, 2, 6, 1))
sketch12.addConstraint(Sketcher.Constraint("Coincident", 6, 2, 7, 1))
sketch12.addConstraint(Sketcher.Constraint("Coincident", 7, 2, 4, 1))
sketch12.addConstraint(Sketcher.Constraint("Vertical", 0))
sketch12.addConstraint(Sketcher.Constraint("Horizontal", 1))
sketch12.addConstraint(Sketcher.Constraint("Vertical", 2))
sketch12.addConstraint(Sketcher.Constraint("Horizontal", 3))
sketch12.addConstraint(Sketcher.Constraint("Vertical", 4))
sketch12.addConstraint(Sketcher.Constraint("Horizontal", 5))
sketch12.addConstraint(Sketcher.Constraint("Vertical", 6))
sketch12.addConstraint(Sketcher.Constraint("Horizontal", 7))
sketch12.addConstraint(Sketcher.Constraint("Symmetric", 2, 2, 6, 2, -1, 1))
sketch12.addConstraint(Sketcher.Constraint("PointOnObject", 2, 2, -1))
sketch12.addConstraint(Sketcher.Constraint("Horizontal", 1, 2, 4, 2))
sketch12.addConstraint(Sketcher.Constraint("Equal", 3, 5))
sketch12.addConstraint(Sketcher.Constraint("DistanceY", 0, 1, 0, 2, Q("15 in")))
sketch12.addConstraint(Sketcher.Constraint("DistanceX", 1, 2, 4, 2, Q("22 in")))
sketch12.addConstraint(Sketcher.Constraint("DistanceX", 1, 1, 1, 2, Q("0.75 in")))
pad8 = body6.newObject("PartDesign::Pad", "Pad007")
pad8.Profile = sketch12
pad8.Length = Q("29.5 in")
pad8.Reversed = True

doc.recompute()
